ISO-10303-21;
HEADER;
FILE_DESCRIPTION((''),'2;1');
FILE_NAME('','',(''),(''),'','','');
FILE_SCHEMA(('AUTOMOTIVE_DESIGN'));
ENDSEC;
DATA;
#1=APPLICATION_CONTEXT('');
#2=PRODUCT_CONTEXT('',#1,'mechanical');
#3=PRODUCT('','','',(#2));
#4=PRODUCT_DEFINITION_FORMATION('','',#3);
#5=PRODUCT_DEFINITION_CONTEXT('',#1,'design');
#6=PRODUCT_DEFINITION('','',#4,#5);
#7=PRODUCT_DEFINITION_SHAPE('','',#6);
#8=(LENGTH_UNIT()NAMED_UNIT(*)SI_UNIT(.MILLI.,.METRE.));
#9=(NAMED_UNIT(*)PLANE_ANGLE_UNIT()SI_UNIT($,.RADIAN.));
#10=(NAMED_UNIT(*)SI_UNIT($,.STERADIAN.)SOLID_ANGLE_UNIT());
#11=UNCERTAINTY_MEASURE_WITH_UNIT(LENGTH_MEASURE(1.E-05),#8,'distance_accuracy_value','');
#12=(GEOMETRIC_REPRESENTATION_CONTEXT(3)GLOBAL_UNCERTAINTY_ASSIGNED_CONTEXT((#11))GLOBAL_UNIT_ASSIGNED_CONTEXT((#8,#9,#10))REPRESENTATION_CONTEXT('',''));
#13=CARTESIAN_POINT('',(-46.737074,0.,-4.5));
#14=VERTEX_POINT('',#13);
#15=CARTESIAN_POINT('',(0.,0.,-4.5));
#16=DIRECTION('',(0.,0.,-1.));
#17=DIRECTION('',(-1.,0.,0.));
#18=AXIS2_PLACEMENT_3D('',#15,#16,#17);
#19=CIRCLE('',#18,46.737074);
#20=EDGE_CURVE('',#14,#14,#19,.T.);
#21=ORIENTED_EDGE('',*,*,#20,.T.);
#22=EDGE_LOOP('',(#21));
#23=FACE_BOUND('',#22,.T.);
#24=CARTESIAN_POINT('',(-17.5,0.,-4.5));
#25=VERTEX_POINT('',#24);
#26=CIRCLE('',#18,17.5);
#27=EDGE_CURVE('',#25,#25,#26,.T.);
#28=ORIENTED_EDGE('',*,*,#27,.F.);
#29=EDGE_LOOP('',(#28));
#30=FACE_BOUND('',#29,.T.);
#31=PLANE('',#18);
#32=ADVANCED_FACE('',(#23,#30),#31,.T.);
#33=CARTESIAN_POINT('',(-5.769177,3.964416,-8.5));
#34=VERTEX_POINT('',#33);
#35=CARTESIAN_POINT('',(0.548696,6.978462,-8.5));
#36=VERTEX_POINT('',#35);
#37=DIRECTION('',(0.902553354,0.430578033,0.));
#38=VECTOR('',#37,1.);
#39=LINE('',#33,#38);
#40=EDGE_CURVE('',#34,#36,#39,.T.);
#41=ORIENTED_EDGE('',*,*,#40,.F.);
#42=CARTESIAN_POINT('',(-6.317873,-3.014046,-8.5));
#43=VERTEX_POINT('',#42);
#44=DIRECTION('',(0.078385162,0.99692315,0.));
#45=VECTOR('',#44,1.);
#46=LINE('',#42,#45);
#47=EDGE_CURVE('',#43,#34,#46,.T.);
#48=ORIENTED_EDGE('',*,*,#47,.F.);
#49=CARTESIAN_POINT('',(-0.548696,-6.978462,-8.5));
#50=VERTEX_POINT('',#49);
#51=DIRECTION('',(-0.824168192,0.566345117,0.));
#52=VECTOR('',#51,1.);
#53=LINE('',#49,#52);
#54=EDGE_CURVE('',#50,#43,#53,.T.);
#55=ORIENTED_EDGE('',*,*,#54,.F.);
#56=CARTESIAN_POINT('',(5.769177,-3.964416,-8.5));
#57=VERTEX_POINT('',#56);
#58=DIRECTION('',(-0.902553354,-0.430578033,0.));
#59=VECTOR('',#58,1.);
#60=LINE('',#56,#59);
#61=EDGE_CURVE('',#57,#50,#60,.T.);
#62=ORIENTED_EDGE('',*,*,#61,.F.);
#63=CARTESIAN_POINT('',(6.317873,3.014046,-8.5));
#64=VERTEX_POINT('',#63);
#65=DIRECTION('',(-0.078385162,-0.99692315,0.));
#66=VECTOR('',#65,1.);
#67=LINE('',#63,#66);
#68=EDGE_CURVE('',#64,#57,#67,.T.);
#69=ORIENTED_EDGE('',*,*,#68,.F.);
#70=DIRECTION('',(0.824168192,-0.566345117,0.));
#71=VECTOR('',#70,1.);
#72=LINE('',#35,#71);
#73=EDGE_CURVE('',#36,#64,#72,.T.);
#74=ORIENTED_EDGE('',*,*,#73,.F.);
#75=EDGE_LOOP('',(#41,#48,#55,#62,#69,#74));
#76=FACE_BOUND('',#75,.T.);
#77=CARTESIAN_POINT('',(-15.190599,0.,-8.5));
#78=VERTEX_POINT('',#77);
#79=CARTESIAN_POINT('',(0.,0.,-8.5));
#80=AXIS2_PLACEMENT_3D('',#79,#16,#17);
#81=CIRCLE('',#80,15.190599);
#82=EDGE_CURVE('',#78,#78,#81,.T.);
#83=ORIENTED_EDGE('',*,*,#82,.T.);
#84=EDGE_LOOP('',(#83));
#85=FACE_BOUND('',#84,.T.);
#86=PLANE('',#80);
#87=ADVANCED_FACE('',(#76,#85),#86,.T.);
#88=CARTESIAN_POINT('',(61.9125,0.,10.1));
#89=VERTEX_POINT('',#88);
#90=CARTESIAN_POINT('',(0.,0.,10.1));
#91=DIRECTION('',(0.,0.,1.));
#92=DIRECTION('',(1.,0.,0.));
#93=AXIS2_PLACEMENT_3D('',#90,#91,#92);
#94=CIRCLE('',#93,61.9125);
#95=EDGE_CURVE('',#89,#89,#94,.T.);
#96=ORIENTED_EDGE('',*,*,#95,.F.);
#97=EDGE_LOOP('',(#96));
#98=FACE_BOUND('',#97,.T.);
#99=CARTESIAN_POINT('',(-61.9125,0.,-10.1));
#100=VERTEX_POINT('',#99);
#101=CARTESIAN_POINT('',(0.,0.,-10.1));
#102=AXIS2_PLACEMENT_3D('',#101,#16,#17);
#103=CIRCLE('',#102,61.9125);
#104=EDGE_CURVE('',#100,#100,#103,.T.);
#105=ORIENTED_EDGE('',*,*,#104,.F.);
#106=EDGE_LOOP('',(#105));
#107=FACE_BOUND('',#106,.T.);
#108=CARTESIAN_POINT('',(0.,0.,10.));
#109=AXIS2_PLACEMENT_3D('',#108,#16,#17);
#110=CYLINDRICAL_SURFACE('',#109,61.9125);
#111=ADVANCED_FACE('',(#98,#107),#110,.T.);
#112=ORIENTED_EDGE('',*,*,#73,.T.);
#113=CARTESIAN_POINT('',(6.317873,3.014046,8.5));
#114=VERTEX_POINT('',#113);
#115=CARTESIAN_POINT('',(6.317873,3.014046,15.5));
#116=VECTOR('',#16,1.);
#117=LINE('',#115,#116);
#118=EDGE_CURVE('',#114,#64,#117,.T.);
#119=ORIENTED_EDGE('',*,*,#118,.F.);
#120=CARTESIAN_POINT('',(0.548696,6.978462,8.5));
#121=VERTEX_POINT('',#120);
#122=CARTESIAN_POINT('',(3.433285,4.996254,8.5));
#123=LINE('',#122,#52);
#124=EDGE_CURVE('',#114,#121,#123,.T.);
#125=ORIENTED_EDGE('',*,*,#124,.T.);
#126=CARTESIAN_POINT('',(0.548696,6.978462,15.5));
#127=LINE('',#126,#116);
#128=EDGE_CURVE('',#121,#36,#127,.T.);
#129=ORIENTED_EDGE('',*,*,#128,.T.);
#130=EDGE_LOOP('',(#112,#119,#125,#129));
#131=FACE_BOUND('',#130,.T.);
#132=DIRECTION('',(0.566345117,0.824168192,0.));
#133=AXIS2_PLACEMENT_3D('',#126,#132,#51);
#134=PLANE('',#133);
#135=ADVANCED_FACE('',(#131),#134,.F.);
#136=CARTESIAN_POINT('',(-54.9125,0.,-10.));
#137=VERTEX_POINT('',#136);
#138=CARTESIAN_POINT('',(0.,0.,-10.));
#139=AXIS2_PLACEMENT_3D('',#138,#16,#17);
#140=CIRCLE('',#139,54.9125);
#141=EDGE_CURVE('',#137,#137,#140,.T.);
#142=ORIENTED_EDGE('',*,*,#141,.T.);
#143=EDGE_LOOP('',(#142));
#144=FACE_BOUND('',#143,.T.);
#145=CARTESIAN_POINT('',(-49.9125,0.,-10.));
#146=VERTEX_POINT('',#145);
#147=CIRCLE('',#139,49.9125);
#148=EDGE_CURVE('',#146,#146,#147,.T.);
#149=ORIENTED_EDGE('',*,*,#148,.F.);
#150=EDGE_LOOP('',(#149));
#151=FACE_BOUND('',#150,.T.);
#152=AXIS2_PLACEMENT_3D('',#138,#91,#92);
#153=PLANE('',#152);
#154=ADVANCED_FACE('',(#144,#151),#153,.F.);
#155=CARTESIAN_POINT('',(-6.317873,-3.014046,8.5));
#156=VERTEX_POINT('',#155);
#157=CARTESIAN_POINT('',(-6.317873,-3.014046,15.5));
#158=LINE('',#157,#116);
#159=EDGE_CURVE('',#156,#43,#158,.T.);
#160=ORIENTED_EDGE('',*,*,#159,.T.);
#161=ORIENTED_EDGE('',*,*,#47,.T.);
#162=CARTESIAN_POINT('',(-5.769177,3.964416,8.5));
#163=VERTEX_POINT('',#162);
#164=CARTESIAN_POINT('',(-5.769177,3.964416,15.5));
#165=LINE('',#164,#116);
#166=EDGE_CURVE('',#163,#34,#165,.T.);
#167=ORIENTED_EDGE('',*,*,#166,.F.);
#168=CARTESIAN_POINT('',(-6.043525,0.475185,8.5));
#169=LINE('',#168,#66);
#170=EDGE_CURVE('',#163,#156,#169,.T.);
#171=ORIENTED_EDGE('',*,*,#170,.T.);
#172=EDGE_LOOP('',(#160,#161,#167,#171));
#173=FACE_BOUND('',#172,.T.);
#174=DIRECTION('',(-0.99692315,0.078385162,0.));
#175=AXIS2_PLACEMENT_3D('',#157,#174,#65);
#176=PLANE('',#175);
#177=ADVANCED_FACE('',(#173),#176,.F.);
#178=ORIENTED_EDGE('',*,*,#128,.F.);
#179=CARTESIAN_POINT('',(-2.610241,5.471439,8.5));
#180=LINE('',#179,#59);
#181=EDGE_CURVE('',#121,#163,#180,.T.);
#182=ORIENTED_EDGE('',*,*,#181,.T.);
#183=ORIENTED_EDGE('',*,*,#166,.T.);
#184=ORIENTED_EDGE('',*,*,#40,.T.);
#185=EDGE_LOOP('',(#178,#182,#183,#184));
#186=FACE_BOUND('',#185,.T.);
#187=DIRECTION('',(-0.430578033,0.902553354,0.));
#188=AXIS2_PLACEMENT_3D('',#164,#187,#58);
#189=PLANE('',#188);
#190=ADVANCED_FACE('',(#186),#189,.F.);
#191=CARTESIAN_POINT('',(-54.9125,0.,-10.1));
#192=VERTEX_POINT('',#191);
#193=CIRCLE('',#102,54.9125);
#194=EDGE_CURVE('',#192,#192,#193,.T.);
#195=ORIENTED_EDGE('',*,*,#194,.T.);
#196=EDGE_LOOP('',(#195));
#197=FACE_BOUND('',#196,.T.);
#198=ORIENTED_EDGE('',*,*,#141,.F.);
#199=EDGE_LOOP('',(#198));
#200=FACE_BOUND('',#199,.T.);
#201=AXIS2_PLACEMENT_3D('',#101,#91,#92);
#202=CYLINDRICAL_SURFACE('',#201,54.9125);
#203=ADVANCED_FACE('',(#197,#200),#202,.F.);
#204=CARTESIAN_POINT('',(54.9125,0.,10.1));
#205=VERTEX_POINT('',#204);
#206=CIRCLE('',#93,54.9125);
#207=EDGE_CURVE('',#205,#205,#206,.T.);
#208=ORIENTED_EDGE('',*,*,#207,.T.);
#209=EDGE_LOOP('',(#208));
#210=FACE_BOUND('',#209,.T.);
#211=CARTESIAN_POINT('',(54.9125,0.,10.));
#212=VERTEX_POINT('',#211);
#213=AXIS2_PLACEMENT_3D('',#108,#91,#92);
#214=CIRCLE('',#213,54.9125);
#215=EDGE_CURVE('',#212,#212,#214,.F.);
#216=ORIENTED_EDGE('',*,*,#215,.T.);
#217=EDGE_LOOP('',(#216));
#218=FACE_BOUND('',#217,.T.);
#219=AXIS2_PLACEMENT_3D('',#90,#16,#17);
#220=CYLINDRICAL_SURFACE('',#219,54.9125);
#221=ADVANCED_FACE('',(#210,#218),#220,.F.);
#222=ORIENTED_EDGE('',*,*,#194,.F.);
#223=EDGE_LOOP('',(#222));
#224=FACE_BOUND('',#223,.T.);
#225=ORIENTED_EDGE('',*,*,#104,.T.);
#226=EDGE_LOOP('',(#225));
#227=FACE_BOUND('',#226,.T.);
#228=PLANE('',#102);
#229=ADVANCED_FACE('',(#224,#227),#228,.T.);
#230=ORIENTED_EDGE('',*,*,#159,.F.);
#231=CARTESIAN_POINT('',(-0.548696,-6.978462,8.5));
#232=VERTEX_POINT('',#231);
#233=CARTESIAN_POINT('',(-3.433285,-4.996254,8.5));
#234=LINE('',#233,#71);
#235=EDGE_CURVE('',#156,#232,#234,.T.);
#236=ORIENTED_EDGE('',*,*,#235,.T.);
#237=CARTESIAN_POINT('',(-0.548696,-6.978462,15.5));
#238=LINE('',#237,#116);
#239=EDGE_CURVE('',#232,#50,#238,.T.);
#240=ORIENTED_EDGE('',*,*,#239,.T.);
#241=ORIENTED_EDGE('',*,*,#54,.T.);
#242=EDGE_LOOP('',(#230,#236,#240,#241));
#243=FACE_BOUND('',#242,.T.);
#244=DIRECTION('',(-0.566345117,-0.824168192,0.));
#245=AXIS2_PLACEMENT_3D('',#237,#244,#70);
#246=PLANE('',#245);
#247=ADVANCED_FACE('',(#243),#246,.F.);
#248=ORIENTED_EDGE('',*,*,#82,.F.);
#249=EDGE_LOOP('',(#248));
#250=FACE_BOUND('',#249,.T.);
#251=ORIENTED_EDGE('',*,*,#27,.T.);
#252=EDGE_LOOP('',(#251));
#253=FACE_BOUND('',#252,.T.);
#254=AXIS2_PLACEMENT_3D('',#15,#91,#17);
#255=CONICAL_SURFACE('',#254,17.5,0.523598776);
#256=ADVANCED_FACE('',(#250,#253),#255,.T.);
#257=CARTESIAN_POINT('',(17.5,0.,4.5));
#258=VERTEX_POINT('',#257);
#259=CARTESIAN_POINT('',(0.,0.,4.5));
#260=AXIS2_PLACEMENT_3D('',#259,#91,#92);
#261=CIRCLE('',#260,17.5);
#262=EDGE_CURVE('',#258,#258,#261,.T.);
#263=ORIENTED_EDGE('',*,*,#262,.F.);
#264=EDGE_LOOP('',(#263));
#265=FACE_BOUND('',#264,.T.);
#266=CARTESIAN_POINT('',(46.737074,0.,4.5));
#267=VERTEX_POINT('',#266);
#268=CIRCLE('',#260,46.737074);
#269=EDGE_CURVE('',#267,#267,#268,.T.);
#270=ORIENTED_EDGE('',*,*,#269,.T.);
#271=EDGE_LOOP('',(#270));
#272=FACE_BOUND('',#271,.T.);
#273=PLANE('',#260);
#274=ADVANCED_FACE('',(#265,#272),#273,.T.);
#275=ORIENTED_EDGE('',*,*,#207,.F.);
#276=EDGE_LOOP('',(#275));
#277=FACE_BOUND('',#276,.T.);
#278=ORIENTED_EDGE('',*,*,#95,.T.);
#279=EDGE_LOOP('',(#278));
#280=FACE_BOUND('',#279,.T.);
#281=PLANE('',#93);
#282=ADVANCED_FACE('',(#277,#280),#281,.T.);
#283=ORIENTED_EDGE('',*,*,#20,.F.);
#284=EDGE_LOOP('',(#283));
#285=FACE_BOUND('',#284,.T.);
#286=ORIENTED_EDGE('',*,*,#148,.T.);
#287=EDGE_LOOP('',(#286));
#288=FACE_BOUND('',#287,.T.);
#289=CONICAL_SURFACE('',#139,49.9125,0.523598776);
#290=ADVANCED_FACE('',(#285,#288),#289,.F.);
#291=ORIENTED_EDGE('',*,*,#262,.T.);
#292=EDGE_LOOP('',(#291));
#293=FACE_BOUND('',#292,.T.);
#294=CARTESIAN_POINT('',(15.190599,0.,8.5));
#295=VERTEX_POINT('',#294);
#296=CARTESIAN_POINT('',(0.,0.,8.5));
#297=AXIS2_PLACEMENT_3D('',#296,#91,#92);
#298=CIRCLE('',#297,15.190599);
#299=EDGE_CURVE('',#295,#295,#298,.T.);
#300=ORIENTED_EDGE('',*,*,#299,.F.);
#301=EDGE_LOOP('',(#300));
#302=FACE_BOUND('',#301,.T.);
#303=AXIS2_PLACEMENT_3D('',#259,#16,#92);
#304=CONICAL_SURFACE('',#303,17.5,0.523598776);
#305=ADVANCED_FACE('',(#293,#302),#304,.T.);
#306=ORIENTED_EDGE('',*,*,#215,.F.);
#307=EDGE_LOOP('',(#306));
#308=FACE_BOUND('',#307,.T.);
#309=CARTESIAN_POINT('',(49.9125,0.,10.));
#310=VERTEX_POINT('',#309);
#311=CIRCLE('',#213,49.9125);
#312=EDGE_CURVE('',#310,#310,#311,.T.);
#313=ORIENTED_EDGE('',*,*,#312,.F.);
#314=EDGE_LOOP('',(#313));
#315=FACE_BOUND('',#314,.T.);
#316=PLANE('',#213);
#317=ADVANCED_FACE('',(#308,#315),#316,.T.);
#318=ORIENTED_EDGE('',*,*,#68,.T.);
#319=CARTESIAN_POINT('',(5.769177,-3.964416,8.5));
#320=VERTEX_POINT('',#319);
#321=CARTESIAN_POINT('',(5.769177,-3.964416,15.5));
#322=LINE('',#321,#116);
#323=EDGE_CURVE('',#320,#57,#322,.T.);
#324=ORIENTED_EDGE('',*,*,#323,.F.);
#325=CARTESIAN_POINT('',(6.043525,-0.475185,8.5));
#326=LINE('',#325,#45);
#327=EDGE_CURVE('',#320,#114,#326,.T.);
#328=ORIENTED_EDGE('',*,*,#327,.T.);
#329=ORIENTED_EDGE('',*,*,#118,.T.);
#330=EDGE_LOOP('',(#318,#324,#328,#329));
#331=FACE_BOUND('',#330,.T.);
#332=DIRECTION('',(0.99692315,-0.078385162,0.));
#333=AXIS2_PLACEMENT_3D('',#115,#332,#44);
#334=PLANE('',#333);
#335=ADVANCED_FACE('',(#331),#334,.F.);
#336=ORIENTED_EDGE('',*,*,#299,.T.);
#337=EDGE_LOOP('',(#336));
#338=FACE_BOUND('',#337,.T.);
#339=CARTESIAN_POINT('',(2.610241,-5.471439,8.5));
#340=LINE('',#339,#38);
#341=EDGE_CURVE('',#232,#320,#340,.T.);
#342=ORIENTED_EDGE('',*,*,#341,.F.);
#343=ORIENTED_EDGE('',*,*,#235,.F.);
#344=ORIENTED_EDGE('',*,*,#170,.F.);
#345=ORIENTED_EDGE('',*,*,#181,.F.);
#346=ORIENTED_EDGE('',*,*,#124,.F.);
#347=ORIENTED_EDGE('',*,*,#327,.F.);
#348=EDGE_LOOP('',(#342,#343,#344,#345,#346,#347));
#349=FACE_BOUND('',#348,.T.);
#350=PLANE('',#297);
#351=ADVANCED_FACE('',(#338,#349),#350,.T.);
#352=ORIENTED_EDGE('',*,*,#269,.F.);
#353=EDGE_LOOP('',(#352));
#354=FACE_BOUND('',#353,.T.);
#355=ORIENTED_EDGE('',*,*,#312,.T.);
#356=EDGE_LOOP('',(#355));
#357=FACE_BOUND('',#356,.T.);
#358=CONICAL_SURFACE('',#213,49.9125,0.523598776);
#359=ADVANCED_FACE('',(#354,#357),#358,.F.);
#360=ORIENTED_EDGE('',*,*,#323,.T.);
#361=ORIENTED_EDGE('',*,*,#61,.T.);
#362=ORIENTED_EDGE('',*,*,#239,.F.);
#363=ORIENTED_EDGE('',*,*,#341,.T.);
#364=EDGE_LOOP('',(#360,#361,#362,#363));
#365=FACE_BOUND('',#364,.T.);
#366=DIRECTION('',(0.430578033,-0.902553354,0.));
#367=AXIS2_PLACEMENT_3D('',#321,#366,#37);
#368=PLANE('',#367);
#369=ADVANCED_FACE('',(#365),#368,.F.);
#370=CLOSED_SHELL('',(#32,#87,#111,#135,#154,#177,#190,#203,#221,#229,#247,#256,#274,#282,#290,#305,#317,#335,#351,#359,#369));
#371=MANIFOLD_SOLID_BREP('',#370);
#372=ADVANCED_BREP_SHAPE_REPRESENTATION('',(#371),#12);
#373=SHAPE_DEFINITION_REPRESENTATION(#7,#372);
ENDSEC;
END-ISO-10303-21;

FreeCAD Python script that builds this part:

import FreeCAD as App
import Part
import Sketcher
from FreeCAD import Vector


def add_polygon(sketch, points):
    """Adds a closed chain of lines whose ends are joined by coincident constraints."""
    first, n = sketch.GeometryCount, len(points)
    for a, b in zip(points, points[1:] + points[:1]):
        sketch.addGeometry(Part.LineSegment(App.Vector(*a, 0), App.Vector(*b, 0)), False)
    for i in range(n):
        sketch.addConstraint(Sketcher.Constraint("Coincident", first + i, 2, first + (i + 1) % n, 1))

doc = App.newDocument("Part")
body = doc.addObject("PartDesign::Body", "Body")

sketch1 = body.newObject("Sketcher::SketchObject", "Sketch")
sketch1.AttachmentSupport = (doc.getObject("XY_Plane"), [""])
sketch1.MapMode = "FlatFace"
sketch1.addGeometry(Part.Circle(Vector(0, 0, 0), Vector(0, 0, 1), 62), False)
sketch1.addConstraint([
    Sketcher.Constraint("Coincident", 0, 3, -1, 1),
    Sketcher.Constraint("Diameter", 0, 123.825),
])
pad1 = body.newObject("PartDesign::Pad", "Pad")
pad1.Profile = sketch1
pad1.Length = 20
pad1.Midplane = True

sketch2 = body.newObject("Sketcher::SketchObject", "Sketch001")
sketch2.AttachmentSupport = (doc.getObject("XY_Plane"), [""])
sketch2.MapMode = "FlatFace"
sketch2.AttachmentOffset = App.Placement(Vector(0, 0, 10), App.Rotation())
sketch2.addGeometry(Part.Circle(Vector(0, 0, 0), Vector(0, 0, 1), 50), False)
sketch2.addConstraint([
    Sketcher.Constraint("Coincident", 0, 3, -1, 1),
    Sketcher.Constraint("Diameter", 0, 99.825),
])
pocket1 = body.newObject("PartDesign::Pocket", "Pocket")
pocket1.Profile = sketch2
pocket1.Length = 5.5
pocket1.TaperAngle = -30

sketch3 = body.newObject("Sketcher::SketchObject", "Sketch002")
sketch3.AttachmentSupport = (doc.getObject("XY_Plane"), [""])
sketch3.MapMode = "FlatFace"
sketch3.AttachmentOffset = App.Placement(Vector(0, 0, -10), App.Rotation())
sketch3.addGeometry(Part.Circle(Vector(0, 0, 0), Vector(0, 0, 1), 50), False)
sketch3.addConstraint([
    Sketcher.Constraint("Coincident", 0, 3, -1, 1),
    Sketcher.Constraint("Diameter", 0, 99.825),
])
pocket2 = body.newObject("PartDesign::Pocket", "Pocket001")
pocket2.Profile = sketch3
pocket2.Length = 5.5
pocket2.Reversed = True
pocket2.TaperAngle = -30

sketch4 = body.newObject("Sketcher::SketchObject", "Sketch003")
sketch4.AttachmentSupport = (doc.getObject("XY_Plane"), [""])
sketch4.MapMode = "FlatFace"
sketch4.AttachmentOffset = App.Placement(Vector(0, 0, 4.5), App.Rotation())
sketch4.addGeometry(Part.Circle(Vector(0, 0, 0), Vector(0, 0, 1), 18), False)
sketch4.addConstraint([
    Sketcher.Constraint("Coincident", 0, 3, -1, 1),
    Sketcher.Constraint("Diameter", 0, 35.0),
])
pad2 = body.newObject("PartDesign::Pad", "Pad001")
pad2.Profile = sketch4
pad2.Length = 4
pad2.TaperAngle = -30

sketch5 = body.newObject("Sketcher::SketchObject", "Sketch004")
sketch5.AttachmentSupport = (doc.getObject("XY_Plane"), [""])
sketch5.MapMode = "FlatFace"
sketch5.AttachmentOffset = App.Placement(Vector(0, 0, -4.5), App.Rotation())
sketch5.addGeometry(Part.Circle(Vector(0, 0, 0), Vector(0, 0, 1), 18), False)
sketch5.addConstraint([
    Sketcher.Constraint("Coincident", 0, 3, -1, 1),
    Sketcher.Constraint("Diameter", 0, 35.0),
])
pad3 = body.newObject("PartDesign::Pad", "Pad002")
pad3.Profile = sketch5
pad3.Length = 4
pad3.Reversed = True
pad3.TaperAngle = -30

sketch6 = body.newObject("Sketcher::SketchObject", "Sketch005")
sketch6.AttachmentSupport = (doc.getObject("XY_Plane"), [""])
sketch6.MapMode = "FlatFace"
sketch6.AttachmentOffset = App.Placement(Vector(0, 0, -8.5), App.Rotation())
add_polygon(sketch6, [(-6, -3), (-6, 4), (1, 7), (6, 3), (6, -4), (-1, -7)])
sketch6.addConstraint([
    Sketcher.Constraint("Symmetric", 0, 2, 3, 2, -1, 1),
    Sketcher.Constraint("Symmetric", 1, 2, 4, 2, -1, 1),
    Sketcher.Constraint("Symmetric", 2, 2, 5, 2, -1, 1),
    Sketcher.Constraint("Equal", 0, 1),
    Sketcher.Constraint("Equal", 1, 2),
    Sketcher.Constraint("Distance", 0, 7.0),
    Sketcher.Constraint("DistanceX", 0, 2, 2, 2, 12.087051),
    Sketcher.Constraint("DistanceY", 2, 2, 0, 2, 0.95037),
    Sketcher.Constraint("DistanceX", 1, 2, 3, 2, 5.220481),
])
pocket3 = body.newObject("PartDesign::Pocket", "Pocket002")
pocket3.Profile = sketch6
pocket3.Length = 24
pocket3.Reversed = True

sketch7 = body.newObject("Sketcher::SketchObject", "Sketch006")
sketch7.AttachmentSupport = (doc.getObject("XY_Plane"), [""])
sketch7.MapMode = "FlatFace"
sketch7.AttachmentOffset = App.Placement(Vector(0, 0, 10), App.Rotation())
sketch7.addGeometry([
    Part.Circle(Vector(0, 0, 0), Vector(0, 0, 1), 62),
    Part.Circle(Vector(0, 0, 0), Vector(0, 0, 1), 55),
], False)
sketch7.addConstraint([
    Sketcher.Constraint("Coincident", 0, 3, -1, 1),
    Sketcher.Constraint("Coincident", 1, 3, -1, 1),
    Sketcher.Constraint("Diameter", 0, 123.825),
    Sketcher.Constraint("Diameter", 1, 109.825),
])
pad4 = body.newObject("PartDesign::Pad", "Pad003")
pad4.Profile = sketch7
pad4.Length = 0.1

sketch8 = body.newObject("Sketcher::SketchObject", "Sketch007")
sketch8.AttachmentSupport = (doc.getObject("XY_Plane"), [""])
sketch8.MapMode = "FlatFace"
sketch8.AttachmentOffset = App.Placement(Vector(0, 0, -10), App.Rotation())
sketch8.addGeometry([
    Part.Circle(Vector(0, 0, 0), Vector(0, 0, 1), 62),
    Part.Circle(Vector(0, 0, 0), Vector(0, 0, 1), 55),
], False)
sketch8.addConstraint([
    Sketcher.Constraint("Coincident", 0, 3, -1, 1),
    Sketcher.Constraint("Coincident", 1, 3, -1, 1),
    Sketcher.Constraint("Diameter", 0, 123.825),
    Sketcher.Constraint("Diameter", 1, 109.825),
])
pad5 = body.newObject("PartDesign::Pad", "Pad004")
pad5.Profile = sketch8
pad5.Length = 0.1
pad5.Reversed = True

doc.recompute()
